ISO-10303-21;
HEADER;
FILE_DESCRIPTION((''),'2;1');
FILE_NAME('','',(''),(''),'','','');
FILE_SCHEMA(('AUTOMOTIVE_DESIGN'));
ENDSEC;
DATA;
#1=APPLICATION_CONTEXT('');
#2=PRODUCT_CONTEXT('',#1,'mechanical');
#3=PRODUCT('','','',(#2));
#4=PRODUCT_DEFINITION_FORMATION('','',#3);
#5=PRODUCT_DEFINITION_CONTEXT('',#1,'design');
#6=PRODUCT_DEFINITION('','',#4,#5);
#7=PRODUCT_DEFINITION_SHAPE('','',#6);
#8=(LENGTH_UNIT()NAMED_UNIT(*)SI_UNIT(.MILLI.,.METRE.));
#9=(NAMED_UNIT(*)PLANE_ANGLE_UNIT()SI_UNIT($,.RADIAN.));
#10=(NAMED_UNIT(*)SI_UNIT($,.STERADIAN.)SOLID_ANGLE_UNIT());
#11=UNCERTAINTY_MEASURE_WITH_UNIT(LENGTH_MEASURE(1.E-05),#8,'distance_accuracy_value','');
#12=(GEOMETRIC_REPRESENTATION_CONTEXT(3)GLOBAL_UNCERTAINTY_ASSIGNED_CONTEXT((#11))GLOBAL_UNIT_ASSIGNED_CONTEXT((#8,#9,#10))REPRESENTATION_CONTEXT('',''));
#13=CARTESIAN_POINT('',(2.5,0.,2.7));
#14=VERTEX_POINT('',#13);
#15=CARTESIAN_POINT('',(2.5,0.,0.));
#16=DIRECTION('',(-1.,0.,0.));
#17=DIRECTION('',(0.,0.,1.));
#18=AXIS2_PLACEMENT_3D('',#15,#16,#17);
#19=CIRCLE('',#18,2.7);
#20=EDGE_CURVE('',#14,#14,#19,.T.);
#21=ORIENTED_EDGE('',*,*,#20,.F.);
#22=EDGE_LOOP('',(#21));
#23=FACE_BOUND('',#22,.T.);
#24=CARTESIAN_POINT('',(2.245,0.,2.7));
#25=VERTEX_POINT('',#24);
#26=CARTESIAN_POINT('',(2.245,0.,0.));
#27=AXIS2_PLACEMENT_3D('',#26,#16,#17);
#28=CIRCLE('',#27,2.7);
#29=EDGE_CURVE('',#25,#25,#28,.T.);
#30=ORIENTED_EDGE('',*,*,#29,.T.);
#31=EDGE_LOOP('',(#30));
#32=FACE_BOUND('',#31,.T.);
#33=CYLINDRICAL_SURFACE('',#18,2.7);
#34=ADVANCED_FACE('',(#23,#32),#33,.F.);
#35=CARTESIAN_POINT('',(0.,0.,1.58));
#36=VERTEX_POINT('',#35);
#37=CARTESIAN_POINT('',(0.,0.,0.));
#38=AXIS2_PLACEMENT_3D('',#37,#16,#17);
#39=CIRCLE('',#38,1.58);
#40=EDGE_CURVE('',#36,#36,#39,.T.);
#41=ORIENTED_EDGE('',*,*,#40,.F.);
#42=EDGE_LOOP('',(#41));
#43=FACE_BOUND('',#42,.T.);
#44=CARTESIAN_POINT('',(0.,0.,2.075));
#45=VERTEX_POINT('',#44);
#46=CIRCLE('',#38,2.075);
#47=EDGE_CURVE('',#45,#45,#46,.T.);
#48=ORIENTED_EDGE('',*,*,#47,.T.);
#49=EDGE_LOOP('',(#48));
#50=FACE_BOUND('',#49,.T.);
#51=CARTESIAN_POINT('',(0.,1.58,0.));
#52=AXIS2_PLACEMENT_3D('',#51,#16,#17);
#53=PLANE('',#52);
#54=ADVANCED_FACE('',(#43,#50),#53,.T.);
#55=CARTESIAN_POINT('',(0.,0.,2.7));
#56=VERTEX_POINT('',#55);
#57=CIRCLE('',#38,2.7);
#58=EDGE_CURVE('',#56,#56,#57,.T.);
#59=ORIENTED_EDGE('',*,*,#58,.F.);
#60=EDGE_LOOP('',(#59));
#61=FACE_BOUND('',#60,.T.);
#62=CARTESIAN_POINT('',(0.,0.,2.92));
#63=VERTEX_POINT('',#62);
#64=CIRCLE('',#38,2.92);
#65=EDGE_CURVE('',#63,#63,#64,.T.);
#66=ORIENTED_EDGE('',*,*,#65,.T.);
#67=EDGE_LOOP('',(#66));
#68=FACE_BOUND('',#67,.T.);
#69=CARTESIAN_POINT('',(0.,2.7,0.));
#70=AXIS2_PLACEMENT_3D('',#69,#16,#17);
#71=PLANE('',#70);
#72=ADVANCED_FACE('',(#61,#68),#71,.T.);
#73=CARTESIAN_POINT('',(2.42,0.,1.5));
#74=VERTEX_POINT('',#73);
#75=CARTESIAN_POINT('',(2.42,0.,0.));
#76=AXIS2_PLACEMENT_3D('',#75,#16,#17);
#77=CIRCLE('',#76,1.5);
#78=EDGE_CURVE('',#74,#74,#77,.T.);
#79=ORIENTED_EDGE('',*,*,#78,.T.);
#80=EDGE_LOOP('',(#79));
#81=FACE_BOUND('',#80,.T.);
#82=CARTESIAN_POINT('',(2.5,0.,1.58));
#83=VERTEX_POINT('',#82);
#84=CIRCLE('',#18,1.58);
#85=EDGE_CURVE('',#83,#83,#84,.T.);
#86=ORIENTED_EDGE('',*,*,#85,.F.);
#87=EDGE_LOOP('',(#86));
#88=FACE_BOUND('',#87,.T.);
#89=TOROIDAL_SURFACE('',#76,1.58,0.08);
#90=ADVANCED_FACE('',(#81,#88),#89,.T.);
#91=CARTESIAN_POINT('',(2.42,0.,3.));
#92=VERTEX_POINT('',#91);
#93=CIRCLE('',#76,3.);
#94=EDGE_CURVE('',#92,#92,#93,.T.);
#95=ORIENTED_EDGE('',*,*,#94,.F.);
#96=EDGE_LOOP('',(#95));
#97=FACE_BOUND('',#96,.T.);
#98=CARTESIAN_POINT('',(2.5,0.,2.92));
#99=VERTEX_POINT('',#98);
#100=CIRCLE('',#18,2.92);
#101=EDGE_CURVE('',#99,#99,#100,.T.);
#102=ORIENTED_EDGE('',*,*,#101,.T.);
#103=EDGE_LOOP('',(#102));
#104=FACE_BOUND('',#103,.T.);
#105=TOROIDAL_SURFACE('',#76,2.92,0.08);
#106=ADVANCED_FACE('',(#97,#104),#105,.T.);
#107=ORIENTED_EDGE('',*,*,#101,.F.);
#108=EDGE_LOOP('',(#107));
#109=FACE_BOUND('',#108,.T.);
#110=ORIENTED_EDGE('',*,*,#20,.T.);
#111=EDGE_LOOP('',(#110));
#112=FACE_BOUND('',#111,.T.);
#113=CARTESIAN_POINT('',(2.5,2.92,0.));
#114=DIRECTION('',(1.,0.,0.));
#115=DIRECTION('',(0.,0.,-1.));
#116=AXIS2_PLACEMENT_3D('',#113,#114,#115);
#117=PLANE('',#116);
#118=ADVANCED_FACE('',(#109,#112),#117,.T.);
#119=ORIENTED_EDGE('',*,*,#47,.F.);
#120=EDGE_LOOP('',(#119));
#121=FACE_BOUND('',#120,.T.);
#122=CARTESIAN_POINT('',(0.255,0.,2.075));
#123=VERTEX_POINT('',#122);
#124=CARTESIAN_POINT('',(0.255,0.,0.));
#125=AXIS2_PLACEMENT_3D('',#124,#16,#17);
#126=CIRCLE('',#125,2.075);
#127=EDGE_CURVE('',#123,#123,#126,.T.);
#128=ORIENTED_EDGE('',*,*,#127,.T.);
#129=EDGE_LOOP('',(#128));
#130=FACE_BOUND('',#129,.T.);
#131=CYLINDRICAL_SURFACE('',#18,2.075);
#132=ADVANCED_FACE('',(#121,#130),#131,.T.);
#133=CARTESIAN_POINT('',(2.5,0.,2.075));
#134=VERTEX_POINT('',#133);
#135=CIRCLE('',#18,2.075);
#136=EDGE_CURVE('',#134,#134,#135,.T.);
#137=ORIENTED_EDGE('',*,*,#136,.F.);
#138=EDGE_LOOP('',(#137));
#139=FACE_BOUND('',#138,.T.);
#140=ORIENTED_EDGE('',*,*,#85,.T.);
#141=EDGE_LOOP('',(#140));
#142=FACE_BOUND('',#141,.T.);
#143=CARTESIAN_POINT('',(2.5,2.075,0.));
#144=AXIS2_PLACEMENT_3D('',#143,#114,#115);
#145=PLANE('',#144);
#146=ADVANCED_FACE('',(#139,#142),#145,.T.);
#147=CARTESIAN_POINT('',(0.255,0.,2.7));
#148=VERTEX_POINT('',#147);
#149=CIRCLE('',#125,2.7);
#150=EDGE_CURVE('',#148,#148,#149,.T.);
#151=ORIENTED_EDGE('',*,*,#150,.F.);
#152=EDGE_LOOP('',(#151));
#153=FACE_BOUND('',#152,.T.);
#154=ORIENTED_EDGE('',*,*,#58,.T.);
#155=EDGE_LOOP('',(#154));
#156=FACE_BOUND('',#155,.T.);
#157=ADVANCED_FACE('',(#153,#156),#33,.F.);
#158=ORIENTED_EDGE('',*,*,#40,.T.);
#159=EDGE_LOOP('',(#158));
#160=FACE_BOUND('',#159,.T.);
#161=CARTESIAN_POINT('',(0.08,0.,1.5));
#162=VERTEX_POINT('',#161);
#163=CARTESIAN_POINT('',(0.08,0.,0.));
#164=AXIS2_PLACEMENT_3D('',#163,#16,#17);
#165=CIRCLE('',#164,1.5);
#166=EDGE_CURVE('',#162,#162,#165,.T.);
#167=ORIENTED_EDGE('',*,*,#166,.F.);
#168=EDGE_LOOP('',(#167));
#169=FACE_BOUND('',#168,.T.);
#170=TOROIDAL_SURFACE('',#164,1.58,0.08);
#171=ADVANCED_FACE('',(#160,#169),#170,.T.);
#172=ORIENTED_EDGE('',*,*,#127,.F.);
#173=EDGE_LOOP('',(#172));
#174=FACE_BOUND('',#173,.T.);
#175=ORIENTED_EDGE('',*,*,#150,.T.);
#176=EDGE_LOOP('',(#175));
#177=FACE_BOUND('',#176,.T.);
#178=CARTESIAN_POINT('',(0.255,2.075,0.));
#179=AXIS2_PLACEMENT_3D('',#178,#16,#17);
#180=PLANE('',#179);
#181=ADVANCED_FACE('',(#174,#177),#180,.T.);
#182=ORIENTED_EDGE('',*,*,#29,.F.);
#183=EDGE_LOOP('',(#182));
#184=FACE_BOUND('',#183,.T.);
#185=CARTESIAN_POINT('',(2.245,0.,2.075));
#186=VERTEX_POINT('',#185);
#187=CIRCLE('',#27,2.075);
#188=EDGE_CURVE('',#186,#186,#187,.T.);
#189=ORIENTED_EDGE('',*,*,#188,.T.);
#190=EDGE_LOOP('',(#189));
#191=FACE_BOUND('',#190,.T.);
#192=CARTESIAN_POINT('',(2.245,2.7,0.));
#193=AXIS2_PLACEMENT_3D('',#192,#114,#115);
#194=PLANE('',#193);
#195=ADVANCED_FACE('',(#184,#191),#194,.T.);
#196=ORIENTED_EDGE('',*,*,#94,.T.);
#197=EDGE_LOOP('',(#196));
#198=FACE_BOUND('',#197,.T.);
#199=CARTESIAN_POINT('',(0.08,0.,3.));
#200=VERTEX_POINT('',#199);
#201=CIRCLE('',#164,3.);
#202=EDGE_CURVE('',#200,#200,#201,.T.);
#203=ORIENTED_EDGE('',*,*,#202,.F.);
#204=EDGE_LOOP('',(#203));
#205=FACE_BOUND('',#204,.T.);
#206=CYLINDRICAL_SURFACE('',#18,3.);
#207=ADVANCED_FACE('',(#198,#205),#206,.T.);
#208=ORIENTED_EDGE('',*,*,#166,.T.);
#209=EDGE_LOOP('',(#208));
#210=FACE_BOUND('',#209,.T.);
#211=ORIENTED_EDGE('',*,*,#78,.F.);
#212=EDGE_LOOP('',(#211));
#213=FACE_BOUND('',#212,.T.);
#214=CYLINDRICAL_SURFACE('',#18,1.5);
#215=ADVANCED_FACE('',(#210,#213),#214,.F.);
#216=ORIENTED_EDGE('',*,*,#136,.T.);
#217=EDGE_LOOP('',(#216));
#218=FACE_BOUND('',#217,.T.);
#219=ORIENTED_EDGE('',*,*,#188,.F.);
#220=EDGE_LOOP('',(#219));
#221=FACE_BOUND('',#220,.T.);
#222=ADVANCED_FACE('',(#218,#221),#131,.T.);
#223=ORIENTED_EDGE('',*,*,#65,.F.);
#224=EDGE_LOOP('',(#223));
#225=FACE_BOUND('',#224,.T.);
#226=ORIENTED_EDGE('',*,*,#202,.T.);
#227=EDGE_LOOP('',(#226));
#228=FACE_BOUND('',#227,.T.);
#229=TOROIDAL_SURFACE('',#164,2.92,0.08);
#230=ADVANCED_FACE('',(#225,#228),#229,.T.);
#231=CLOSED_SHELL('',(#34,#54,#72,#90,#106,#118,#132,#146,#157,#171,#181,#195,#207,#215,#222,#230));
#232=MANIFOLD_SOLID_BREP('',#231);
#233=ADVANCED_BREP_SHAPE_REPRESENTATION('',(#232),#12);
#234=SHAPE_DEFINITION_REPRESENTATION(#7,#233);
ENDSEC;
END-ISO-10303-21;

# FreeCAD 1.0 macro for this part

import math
import FreeCAD as App
import Part
import Sketcher
from FreeCAD import Vector

doc = App.newDocument("Part")
body = doc.addObject("PartDesign::Body", "Body")

sketch1 = body.newObject("Sketcher::SketchObject", "Sketch")
sketch1.AttachmentSupport = (doc.getObject("XY_Plane"), [""])
sketch1.MapMode = "FlatFace"
sketch1.addGeometry([
    Part.LineSegment(Vector(0, 2.08, 0), Vector(0.26, 2.08, 0)),
    Part.LineSegment(Vector(0.26, 2.08, 0), Vector(0.26, 2.7, 0)),
    Part.LineSegment(Vector(0.26, 2.7, 0), Vector(0, 2.7, 0)),
    Part.LineSegment(Vector(0, 2.7, 0), Vector(0, 2.92, 0)),
    Part.ArcOfCircle(Part.Circle(Vector(0.08, 2.92, 0), Vector(0, 0, 1), 0.08), math.radians(90), math.radians(180)),
    Part.LineSegment(Vector(0.08, 3, 0), Vector(2.42, 3, 0)),
    Part.ArcOfCircle(Part.Circle(Vector(2.42, 2.92, 0), Vector(0, 0, 1), 0.08), math.radians(0), math.radians(90)),
    Part.LineSegment(Vector(2.5, 2.92, 0), Vector(2.5, 2.7, 0)),
    Part.LineSegment(Vector(2.5, 2.7, 0), Vector(2.25, 2.7, 0)),
    Part.LineSegment(Vector(2.25, 2.7, 0), Vector(2.25, 2.08, 0)),
    Part.LineSegment(Vector(2.25, 2.08, 0), Vector(2.5, 2.08, 0)),
    Part.LineSegment(Vector(2.5, 2.08, 0), Vector(2.5, 1.58, 0)),
    Part.ArcOfCircle(Part.Circle(Vector(2.42, 1.58, 0), Vector(0, 0, 1), 0.08), math.radians(-90), math.radians(0)),
    Part.LineSegment(Vector(2.42, 1.5, 0), Vector(0.08, 1.5, 0)),
    Part.ArcOfCircle(Part.Circle(Vector(0.08, 1.58, 0), Vector(0, 0, 1), 0.08), math.radians(-180), math.radians(-90)),
    Part.LineSegment(Vector(0, 1.58, 0), Vector(0, 2.08, 0)),
], False)
sketch1.addConstraint([
    Sketcher.Constraint("Coincident", 0, 2, 1, 1),
    Sketcher.Constraint("Coincident", 1, 2, 2, 1),
    Sketcher.Constraint("Coincident", 2, 2, 3, 1),
    Sketcher.Constraint("Tangent", 3, 2, 4, 2),
    Sketcher.Constraint("Tangent", 4, 1, 5, 1),
    Sketcher.Constraint("Tangent", 5, 2, 6, 2),
    Sketcher.Constraint("Tangent", 6, 1, 7, 1),
    Sketcher.Constraint("Coincident", 7, 2, 8, 1),
    Sketcher.Constraint("Coincident", 8, 2, 9, 1),
    Sketcher.Constraint("Coincident", 9, 2, 10, 1),
    Sketcher.Constraint("Coincident", 10, 2, 11, 1),
    Sketcher.Constraint("Tangent", 11, 2, 12, 2),
    Sketcher.Constraint("Tangent", 12, 1, 13, 1),
    Sketcher.Constraint("Tangent", 13, 2, 14, 2),
    Sketcher.Constraint("Tangent", 14, 1, 15, 1),
    Sketcher.Constraint("Coincident", 15, 2, 0, 1),
    Sketcher.Constraint("Horizontal", 0),
    Sketcher.Constraint("Vertical", 1),
    Sketcher.Constraint("Horizontal", 2),
    Sketcher.Constraint("Vertical", 3),
    Sketcher.Constraint("Horizontal", 5),
    Sketcher.Constraint("Vertical", 7),
    Sketcher.Constraint("Horizontal", 8),
    Sketcher.Constraint("Vertical", 9),
    Sketcher.Constraint("Horizontal", 10),
    Sketcher.Constraint("Vertical", 11),
    Sketcher.Constraint("Horizontal", 13),
    Sketcher.Constraint("Vertical", 15),
    Sketcher.Constraint("Equal", 4, 6),
    Sketcher.Constraint("Equal", 6, 12),
    Sketcher.Constraint("Equal", 12, 14),
    Sketcher.Constraint("PointOnObject", 2, 2, -2),
    Sketcher.Constraint("PointOnObject", 14, 1, -2),
    Sketcher.Constraint("Horizontal", 2, 2, 7, 2),
    Sketcher.Constraint("Horizontal", 0, 2, 9, 2),
    Sketcher.Constraint("Vertical", 6, 3, 12, 3),
    Sketcher.Constraint("Equal", 2, 8),
    Sketcher.Constraint("Radius", 4, 0.08),
    Sketcher.Constraint("DistanceY", -1, 1, 4, 1, 3.0),
    Sketcher.Constraint("DistanceX", 5, 1, 5, 2, 2.34),
    Sketcher.Constraint("DistanceY", 3, 1, 3, 2, 0.22),
    Sketcher.Constraint("DistanceY", -1, 1, 12, 1, 1.5),
    Sketcher.Constraint("DistanceX", 0, 1, 0, 2, 0.255),
    Sketcher.Constraint("DistanceY", 1, 1, 1, 2, 0.625),
])
revolution = body.newObject("PartDesign::Revolution", "Revolution")
revolution.Profile = sketch1
revolution.ReferenceAxis = (sketch1, ["H_Axis"])
revolution.Angle = 360

doc.recompute()
